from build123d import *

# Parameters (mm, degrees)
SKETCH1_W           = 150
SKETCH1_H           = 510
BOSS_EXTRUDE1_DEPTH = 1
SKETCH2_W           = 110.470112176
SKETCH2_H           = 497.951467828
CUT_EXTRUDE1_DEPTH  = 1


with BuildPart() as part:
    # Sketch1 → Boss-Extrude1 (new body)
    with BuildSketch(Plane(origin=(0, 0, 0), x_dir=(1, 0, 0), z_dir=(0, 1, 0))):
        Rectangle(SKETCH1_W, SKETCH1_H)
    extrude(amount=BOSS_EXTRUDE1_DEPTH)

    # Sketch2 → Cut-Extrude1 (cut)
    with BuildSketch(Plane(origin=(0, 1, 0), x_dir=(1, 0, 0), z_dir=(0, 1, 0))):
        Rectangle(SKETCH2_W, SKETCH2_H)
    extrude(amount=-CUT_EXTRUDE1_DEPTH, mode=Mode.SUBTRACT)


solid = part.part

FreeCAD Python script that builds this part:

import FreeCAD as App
import Part
import Sketcher

V = App.Vector


def add_polygon(sketch, points):
    """Adds a closed chain of lines whose ends are joined by coincident constraints."""
    first, n = sketch.GeometryCount, len(points)
    for a, b in zip(points, points[1:] + points[:1]):
        sketch.addGeometry(Part.LineSegment(App.Vector(*a, 0), App.Vector(*b, 0)), False)
    for i in range(n):
        sketch.addConstraint(Sketcher.Constraint("Coincident", first + i, 2, first + (i + 1) % n, 1))

doc = App.newDocument("Part")
params = doc.addObject("Spreadsheet::Sheet", "Params")
for row, (alias, value) in enumerate([
    ("sketch1_width", "150 mm"),
    ("sketch1_height", "510 mm"),
    ("pad1_length", "1 mm"),
    ("pocket1_length", "1 mm"),
], start=1):
    params.set(f"A{row}", alias)
    params.set(f"B{row}", "=" + value)
    params.setAlias(f"B{row}", alias)

body = doc.addObject("PartDesign::Body", "Body")

# Sketch on XZ plane
sketch1 = body.newObject("Sketcher::SketchObject", "Sketch")
sketch1.AttachmentSupport = (doc.getObject("XZ_Plane"), [""])
sketch1.MapMode = "FlatFace"
add_polygon(sketch1, [(-75, -255), (-75, 255), (75, 255), (75, -255)])  # lines 0-3
sketch1.addConstraint(Sketcher.Constraint("Vertical", 0))
sketch1.addConstraint(Sketcher.Constraint("Horizontal", 1))
sketch1.addConstraint(Sketcher.Constraint("Vertical", 2))
sketch1.addConstraint(Sketcher.Constraint("Horizontal", 3))
sketch1.addConstraint(Sketcher.Constraint("Symmetric", 0, 2, 2, 2, -1, 1))
sketch1.addConstraint(Sketcher.Constraint("DistanceX", 1, 1, 1, 2, 150.0))
sketch1.addConstraint(Sketcher.Constraint("DistanceY", 0, 1, 0, 2, 510.0))
sketch1.setExpression("Constraints[9]", "Params.sketch1_width")
sketch1.setExpression("Constraints[10]", "Params.sketch1_height")
pad1 = body.newObject("PartDesign::Pad", "Pad")
pad1.Profile = sketch1
pad1.setExpression("Length", "Params.pad1_length")
pad1.Reversed = True

# Sketch on XZ plane
sketch2 = body.newObject("Sketcher::SketchObject", "Sketch001")
sketch2.AttachmentSupport = (doc.getObject("XZ_Plane"), [""])
sketch2.MapMode = "FlatFace"
sketch2.AttachmentOffset = App.Placement(V(0, 0, -1), App.Rotation())
add_polygon(sketch2, [(-55, -249), (-55, 249), (55, 249), (55, -249)])  # lines 0-3
sketch2.addConstraint(Sketcher.Constraint("Vertical", 0))
sketch2.addConstraint(Sketcher.Constraint("Horizontal", 1))
sketch2.addConstraint(Sketcher.Constraint("Vertical", 2))
sketch2.addConstraint(Sketcher.Constraint("Horizontal", 3))
sketch2.addConstraint(Sketcher.Constraint("Symmetric", 0, 2, 2, 2, -1, 1))
sketch2.addConstraint(Sketcher.Constraint("DistanceX", 1, 1, 1, 2, 110.470112))
sketch2.addConstraint(Sketcher.Constraint("DistanceY", 0, 1, 0, 2, 497.951468))
pocket1 = body.newObject("PartDesign::Pocket", "Pocket")
pocket1.Profile = sketch2
pocket1.setExpression("Length", "Params.pocket1_length")
pocket1.Reversed = True

doc.recompute()
